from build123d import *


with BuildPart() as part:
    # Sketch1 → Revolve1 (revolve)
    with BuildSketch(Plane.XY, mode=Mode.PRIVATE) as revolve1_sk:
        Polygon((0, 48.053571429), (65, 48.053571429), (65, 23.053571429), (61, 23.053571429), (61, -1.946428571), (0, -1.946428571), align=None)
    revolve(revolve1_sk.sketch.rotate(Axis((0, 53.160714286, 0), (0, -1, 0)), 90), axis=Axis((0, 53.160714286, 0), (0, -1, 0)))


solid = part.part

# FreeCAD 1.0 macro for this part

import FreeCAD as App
import Part
import Sketcher

doc = App.newDocument("Part")
params = doc.addObject("Spreadsheet::Sheet", "Params")
for row, (alias, value) in enumerate([
    ("sketch1_width", "65 mm"),
    ("sketch1_width2", "61 mm"),
    ("sketch1_height", "50 mm"),
    ("revolution_angle", "360 deg"),
], start=1):
    params.set(f"A{row}", alias)
    params.set(f"B{row}", "=" + value)
    params.setAlias(f"B{row}", alias)

body = doc.addObject("PartDesign::Body", "Body")

# Sketch on XY plane
sketch1 = doc.addObject("Sketcher::SketchObject", "Sketch")
body.addObject(sketch1)
sketch1.AttachmentSupport = (doc.XY_Plane, [""])
sketch1.MapMode = "FlatFace"
sketch1.addGeometry([
    Part.LineSegment(App.Vector(65, 48.1, 0), App.Vector(0, 48.1, 0)),  # 0
    Part.LineSegment(App.Vector(0, 48.1, 0), App.Vector(0, -1.9, 0)),  # 1
    Part.LineSegment(App.Vector(0, -1.9, 0), App.Vector(61, -1.9, 0)),  # 2
    Part.LineSegment(App.Vector(61, -1.9, 0), App.Vector(61, 23.1, 0)),  # 3
    Part.LineSegment(App.Vector(61, 23.1, 0), App.Vector(65, 23.1, 0)),  # 4
    Part.LineSegment(App.Vector(65, 23.1, 0), App.Vector(65, 48.1, 0)),  # 5
], False)
sketch1.addConstraint([
    Sketcher.Constraint("Coincident", 0, 2, 1, 1),
    Sketcher.Constraint("Coincident", 1, 2, 2, 1),
    Sketcher.Constraint("Coincident", 2, 2, 3, 1),
    Sketcher.Constraint("Coincident", 3, 2, 4, 1),
    Sketcher.Constraint("Coincident", 4, 2, 5, 1),
    Sketcher.Constraint("Coincident", 5, 2, 0, 1),
    Sketcher.Constraint("Horizontal", 0),
    Sketcher.Constraint("Vertical", 1),
    Sketcher.Constraint("Horizontal", 2),
    Sketcher.Constraint("Vertical", 3),
    Sketcher.Constraint("Horizontal", 4),
    Sketcher.Constraint("Vertical", 5),
    Sketcher.Constraint("PointOnObject", 0, 2, -2),
    Sketcher.Constraint("Equal", 3, 5),
    Sketcher.Constraint("DistanceX", 0, 2, 0, 1, 65.0),
    Sketcher.Constraint("DistanceX", 2, 1, 2, 2, 61.0),
    Sketcher.Constraint("DistanceY", 1, 2, 1, 1, 50.0),
    Sketcher.Constraint("DistanceY", -1, 1, 0, 2, 48.053571),
])
sketch1.setExpression("Constraints[14]", "Params.sketch1_width")
sketch1.setExpression("Constraints[15]", "Params.sketch1_width2")
sketch1.setExpression("Constraints[16]", "Params.sketch1_height")
revolution = doc.addObject("PartDesign::Revolution", "Revolution")
body.addObject(revolution)
revolution.Profile = sketch1
revolution.ReferenceAxis = (sketch1, ["V_Axis"])
revolution.setExpression("Angle", "Params.revolution_angle")

doc.recompute()
